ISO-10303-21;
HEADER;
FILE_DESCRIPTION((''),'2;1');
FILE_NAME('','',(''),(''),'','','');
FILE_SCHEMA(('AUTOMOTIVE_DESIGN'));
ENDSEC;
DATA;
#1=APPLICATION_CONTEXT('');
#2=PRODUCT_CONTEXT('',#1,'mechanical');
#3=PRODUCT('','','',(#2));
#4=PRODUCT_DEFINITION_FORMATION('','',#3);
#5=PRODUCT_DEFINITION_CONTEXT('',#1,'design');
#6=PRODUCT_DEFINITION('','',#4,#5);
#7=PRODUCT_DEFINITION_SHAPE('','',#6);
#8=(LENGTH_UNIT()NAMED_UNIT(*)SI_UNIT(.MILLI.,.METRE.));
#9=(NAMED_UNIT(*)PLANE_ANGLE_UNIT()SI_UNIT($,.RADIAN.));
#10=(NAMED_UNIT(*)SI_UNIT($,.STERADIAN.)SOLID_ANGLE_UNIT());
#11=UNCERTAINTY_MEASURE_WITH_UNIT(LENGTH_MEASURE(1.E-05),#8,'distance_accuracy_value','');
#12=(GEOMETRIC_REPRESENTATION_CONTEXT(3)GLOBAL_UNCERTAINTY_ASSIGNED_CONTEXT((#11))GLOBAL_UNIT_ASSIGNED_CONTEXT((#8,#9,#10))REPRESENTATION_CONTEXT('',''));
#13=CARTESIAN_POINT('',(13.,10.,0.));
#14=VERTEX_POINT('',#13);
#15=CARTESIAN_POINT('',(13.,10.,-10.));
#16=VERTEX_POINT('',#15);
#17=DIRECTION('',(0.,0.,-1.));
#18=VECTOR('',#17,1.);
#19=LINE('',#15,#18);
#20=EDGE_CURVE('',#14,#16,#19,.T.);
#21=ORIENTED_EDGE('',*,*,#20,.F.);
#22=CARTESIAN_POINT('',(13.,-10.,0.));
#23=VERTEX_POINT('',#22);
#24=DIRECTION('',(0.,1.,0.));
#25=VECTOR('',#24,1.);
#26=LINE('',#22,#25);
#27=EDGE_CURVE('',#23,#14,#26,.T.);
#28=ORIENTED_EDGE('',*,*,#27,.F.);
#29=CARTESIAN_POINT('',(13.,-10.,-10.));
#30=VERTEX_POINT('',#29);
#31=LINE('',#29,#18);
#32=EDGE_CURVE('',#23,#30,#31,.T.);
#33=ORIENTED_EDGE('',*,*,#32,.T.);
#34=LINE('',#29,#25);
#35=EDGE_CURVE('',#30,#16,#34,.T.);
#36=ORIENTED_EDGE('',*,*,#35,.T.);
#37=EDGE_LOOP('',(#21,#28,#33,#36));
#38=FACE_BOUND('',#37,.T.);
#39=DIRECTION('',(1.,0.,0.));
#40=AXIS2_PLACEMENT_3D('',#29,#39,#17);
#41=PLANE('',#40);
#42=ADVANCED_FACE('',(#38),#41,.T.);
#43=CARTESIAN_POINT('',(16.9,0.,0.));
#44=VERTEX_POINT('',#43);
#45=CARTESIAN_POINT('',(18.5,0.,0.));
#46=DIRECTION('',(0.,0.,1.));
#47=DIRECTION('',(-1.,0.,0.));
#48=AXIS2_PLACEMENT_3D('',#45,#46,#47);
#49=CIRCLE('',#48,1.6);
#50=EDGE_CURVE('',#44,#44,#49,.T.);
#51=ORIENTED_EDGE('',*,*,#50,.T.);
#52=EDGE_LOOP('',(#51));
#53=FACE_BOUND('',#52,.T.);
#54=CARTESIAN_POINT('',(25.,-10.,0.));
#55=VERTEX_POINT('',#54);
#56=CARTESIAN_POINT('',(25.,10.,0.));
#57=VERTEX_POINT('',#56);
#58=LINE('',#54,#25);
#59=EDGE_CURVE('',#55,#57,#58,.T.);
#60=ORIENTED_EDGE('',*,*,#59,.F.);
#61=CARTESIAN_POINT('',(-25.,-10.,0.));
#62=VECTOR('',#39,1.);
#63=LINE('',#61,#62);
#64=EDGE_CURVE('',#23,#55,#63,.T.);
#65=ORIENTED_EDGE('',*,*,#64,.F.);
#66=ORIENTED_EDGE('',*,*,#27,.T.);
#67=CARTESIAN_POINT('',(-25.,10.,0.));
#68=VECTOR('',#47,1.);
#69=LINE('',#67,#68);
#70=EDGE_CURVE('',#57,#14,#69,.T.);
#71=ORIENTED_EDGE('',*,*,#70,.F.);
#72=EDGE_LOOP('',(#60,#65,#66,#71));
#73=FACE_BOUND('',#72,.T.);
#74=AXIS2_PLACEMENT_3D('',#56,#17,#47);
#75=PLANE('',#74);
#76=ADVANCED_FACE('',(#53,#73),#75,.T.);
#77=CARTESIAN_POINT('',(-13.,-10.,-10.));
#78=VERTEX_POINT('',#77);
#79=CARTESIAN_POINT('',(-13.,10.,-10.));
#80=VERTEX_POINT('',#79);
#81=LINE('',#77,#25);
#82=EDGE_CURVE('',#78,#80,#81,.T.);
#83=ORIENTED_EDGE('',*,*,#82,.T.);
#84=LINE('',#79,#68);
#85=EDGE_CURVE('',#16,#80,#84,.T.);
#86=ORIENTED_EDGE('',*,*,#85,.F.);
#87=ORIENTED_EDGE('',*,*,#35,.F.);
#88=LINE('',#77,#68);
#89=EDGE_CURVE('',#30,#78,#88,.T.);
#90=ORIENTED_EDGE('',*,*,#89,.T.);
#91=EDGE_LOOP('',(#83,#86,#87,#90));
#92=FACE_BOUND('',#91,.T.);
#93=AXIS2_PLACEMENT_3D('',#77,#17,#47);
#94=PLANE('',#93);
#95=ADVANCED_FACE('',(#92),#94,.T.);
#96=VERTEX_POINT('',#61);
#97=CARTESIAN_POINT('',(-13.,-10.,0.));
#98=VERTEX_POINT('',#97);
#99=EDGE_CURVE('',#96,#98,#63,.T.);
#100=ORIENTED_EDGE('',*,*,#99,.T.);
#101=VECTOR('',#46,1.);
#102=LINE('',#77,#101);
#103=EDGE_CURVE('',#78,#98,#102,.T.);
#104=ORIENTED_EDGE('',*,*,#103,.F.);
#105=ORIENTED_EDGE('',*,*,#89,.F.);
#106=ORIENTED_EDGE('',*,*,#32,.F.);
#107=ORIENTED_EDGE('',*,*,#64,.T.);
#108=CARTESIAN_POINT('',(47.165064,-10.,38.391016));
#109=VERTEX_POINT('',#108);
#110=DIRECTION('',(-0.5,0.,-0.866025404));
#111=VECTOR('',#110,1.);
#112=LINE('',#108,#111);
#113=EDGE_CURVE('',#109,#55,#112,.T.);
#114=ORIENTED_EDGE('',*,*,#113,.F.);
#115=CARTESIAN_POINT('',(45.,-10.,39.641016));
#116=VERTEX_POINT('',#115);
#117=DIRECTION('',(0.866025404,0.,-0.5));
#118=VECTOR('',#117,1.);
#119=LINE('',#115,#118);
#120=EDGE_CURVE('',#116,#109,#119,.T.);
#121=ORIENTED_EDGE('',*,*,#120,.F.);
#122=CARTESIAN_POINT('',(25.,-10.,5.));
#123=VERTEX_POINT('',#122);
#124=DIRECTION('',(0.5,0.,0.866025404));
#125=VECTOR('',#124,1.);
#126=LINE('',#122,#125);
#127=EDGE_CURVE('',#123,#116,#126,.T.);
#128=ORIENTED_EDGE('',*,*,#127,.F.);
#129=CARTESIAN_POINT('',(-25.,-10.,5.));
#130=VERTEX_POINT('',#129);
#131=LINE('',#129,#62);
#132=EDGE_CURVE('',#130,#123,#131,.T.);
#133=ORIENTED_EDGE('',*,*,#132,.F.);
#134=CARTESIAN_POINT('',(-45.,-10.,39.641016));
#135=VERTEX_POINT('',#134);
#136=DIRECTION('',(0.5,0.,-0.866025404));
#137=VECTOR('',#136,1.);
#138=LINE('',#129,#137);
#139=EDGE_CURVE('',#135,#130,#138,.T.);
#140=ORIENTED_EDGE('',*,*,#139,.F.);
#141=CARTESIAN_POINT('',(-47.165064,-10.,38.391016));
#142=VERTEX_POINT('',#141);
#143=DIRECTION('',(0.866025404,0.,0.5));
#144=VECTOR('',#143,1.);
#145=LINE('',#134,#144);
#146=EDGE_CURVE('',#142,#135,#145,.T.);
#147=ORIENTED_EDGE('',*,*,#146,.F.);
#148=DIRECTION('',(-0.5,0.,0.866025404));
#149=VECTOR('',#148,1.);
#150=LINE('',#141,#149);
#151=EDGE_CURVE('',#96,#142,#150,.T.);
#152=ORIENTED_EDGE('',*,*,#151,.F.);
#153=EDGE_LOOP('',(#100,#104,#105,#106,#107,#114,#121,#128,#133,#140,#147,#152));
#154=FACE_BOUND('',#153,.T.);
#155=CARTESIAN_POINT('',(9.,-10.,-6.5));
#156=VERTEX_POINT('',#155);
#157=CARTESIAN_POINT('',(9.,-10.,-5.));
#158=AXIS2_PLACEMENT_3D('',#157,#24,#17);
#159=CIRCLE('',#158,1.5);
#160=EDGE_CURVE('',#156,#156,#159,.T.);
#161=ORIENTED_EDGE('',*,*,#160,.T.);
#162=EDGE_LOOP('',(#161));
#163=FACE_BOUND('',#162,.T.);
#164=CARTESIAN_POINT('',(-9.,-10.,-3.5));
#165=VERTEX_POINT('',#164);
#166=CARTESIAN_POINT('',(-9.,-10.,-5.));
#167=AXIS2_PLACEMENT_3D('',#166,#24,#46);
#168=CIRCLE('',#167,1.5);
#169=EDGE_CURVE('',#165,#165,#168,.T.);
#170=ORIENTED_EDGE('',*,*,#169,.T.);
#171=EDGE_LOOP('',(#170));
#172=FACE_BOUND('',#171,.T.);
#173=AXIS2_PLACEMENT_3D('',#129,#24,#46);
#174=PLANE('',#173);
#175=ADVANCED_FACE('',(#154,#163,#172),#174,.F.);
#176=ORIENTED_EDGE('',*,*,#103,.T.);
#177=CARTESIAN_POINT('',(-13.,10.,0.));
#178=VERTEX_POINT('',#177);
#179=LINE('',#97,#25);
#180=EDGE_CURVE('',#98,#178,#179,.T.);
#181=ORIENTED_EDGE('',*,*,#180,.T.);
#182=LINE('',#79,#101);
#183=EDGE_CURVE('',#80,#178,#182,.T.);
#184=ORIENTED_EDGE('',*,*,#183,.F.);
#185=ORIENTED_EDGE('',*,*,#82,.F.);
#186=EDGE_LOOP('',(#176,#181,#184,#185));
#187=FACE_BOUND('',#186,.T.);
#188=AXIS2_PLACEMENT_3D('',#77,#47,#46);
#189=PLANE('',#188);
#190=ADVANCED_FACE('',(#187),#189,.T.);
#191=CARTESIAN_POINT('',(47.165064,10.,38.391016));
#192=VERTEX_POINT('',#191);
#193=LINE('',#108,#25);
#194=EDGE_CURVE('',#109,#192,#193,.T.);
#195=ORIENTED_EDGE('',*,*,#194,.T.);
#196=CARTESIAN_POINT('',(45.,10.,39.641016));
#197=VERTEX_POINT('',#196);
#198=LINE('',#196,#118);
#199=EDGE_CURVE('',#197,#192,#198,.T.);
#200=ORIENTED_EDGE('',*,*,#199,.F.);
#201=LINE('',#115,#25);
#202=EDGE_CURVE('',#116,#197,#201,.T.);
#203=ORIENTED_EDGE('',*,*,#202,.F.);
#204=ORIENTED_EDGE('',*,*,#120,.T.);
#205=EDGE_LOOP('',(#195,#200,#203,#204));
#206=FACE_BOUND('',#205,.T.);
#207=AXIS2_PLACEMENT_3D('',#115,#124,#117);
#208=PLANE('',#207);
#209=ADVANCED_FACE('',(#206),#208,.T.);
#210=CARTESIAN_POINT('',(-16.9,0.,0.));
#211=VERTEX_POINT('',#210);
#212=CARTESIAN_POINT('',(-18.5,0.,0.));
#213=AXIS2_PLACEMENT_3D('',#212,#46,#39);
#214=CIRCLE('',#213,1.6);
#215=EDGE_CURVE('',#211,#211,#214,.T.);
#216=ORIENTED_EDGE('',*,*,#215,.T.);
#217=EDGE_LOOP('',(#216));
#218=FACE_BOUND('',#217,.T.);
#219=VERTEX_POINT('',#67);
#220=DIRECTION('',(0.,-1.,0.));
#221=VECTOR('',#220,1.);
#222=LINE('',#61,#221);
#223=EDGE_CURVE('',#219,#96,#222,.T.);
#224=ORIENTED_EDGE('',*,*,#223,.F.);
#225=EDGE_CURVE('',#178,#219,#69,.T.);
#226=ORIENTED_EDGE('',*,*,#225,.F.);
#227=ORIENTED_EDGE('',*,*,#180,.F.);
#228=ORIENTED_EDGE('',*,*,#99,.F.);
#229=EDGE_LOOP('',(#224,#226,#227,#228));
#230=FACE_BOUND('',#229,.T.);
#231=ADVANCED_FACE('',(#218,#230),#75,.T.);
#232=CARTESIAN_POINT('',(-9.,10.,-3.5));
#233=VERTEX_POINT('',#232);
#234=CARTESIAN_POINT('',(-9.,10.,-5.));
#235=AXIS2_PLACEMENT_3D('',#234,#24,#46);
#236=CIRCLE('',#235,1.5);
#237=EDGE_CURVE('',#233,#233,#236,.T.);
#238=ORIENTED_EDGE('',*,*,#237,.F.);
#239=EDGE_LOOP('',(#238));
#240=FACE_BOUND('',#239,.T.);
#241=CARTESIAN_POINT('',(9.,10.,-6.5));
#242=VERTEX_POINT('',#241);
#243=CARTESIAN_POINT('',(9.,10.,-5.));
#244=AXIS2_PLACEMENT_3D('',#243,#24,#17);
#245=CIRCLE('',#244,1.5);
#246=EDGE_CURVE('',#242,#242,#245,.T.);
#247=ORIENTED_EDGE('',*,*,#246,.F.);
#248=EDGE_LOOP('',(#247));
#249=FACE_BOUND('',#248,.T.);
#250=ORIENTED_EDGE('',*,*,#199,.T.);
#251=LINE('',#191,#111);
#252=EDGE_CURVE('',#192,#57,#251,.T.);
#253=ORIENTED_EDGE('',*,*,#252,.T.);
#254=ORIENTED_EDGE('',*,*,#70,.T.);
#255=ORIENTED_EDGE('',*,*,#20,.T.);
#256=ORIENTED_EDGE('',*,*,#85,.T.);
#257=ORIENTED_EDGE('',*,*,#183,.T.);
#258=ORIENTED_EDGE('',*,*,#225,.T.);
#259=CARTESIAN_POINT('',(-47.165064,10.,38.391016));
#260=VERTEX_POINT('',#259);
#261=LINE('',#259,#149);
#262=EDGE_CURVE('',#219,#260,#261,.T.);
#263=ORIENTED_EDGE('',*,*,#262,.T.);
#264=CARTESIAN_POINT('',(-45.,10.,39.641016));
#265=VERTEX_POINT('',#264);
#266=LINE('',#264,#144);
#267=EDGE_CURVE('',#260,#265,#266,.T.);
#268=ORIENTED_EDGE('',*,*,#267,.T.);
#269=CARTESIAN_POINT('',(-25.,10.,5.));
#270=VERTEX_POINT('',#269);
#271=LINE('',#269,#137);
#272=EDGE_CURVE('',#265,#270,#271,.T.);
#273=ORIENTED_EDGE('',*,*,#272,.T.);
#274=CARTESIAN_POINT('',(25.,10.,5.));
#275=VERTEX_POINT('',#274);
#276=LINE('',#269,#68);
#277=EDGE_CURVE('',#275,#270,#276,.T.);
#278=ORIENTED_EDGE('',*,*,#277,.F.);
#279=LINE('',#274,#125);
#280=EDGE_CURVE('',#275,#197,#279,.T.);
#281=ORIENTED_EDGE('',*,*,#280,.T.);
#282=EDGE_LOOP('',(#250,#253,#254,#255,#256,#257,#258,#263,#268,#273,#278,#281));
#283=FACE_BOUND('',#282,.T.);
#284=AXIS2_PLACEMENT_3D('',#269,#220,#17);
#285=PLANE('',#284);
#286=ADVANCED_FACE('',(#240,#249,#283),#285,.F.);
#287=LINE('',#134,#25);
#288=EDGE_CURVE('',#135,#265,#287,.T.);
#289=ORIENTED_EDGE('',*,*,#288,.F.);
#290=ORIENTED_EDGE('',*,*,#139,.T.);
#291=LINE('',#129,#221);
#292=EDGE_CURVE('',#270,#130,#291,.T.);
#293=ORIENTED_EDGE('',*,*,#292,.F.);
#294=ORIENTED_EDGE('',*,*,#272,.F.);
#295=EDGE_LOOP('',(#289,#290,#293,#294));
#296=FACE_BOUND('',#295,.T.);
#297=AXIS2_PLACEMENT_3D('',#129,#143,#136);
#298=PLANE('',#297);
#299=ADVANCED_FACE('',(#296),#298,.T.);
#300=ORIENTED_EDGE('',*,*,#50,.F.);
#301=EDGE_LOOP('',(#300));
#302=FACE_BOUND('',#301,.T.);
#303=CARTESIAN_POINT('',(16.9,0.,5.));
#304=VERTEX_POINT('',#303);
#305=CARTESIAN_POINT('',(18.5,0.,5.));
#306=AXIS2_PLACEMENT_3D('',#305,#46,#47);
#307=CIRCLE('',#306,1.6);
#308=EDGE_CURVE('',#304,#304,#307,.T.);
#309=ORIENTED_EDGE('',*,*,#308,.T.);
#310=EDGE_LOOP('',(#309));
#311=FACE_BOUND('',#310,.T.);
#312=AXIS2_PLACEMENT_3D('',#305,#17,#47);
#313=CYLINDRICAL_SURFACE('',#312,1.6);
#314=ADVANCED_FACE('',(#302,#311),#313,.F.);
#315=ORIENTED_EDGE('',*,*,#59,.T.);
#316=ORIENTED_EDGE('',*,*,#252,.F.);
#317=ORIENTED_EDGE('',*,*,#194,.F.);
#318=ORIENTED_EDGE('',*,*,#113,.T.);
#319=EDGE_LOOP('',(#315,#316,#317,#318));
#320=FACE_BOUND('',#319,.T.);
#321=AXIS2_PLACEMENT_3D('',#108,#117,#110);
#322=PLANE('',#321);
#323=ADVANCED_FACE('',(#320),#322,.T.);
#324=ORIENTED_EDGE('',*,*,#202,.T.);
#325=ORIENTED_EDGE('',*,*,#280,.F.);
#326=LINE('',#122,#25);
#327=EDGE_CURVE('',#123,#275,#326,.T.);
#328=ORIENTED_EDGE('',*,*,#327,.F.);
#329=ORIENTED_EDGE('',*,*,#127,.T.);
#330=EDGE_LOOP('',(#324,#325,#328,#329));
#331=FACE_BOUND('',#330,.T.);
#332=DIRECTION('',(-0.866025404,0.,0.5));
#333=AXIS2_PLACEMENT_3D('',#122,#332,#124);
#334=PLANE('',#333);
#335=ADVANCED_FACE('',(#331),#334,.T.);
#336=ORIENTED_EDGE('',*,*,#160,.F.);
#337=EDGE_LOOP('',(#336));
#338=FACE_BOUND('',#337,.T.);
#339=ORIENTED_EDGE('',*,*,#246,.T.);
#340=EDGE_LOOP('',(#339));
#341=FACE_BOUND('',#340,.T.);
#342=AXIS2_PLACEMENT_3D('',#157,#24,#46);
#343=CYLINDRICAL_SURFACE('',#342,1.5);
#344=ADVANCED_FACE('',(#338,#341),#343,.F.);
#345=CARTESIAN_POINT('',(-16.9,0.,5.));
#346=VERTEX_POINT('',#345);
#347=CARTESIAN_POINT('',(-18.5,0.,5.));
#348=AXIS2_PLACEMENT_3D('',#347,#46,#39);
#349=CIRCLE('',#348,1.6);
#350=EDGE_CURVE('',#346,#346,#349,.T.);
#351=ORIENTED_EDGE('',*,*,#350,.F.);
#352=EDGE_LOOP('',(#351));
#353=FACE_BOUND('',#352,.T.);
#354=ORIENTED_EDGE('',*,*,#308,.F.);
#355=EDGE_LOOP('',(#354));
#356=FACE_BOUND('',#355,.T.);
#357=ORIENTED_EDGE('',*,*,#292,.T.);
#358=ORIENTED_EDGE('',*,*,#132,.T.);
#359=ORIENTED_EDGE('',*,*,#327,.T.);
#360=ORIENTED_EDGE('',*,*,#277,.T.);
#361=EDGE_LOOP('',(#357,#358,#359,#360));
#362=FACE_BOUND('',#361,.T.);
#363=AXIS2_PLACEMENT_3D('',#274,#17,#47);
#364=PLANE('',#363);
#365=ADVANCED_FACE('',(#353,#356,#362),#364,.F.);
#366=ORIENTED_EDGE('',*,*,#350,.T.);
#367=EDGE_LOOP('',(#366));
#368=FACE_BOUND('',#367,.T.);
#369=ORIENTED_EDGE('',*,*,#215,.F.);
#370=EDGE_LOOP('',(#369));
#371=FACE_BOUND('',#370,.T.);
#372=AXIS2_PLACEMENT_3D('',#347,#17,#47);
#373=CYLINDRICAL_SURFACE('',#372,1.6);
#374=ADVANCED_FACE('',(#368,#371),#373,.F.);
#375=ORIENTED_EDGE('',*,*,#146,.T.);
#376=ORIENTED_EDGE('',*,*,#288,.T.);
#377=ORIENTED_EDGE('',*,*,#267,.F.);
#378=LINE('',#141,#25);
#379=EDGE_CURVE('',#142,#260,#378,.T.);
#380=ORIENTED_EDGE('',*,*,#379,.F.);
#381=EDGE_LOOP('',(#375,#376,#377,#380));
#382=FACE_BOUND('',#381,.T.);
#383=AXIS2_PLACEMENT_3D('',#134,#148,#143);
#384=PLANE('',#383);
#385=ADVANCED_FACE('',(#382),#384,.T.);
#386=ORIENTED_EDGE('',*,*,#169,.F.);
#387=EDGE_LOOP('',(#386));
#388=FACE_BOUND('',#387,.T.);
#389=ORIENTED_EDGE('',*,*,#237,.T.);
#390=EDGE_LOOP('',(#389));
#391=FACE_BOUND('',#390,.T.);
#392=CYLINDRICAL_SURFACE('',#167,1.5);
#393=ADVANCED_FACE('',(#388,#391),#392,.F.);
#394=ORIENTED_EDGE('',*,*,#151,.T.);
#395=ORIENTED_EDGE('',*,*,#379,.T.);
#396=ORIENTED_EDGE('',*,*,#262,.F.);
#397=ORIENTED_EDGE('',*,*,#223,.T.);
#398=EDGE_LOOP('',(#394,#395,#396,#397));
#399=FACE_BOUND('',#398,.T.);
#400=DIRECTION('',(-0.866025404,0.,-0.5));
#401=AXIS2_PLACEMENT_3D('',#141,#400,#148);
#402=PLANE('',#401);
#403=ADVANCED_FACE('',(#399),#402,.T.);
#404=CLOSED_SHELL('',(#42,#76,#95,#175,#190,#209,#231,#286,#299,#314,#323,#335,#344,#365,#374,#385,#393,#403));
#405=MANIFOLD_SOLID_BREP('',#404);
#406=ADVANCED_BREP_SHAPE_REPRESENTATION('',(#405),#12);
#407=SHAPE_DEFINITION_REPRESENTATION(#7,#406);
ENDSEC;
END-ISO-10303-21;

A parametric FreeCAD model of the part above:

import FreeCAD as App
import Part
import Sketcher
from FreeCAD import Vector
Q = App.Units.Quantity


def add_polygon(sketch, points):
    """Adds a closed chain of lines whose ends are joined by coincident constraints."""
    first, n = sketch.GeometryCount, len(points)
    for a, b in zip(points, points[1:] + points[:1]):
        sketch.addGeometry(Part.LineSegment(App.Vector(*a, 0), App.Vector(*b, 0)), False)
    for i in range(n):
        sketch.addConstraint(Sketcher.Constraint("Coincident", first + i, 2, first + (i + 1) % n, 1))

doc = App.newDocument("Part")
body = doc.addObject("PartDesign::Body", "Body")

sketch1 = body.newObject("Sketcher::SketchObject", "Sketch")
sketch1.AttachmentSupport = (doc.getObject("XY_Plane"), [""])
sketch1.MapMode = "FlatFace"
add_polygon(sketch1, [(-25, 10), (-25, -10), (25, -10), (25, 10)])
sketch1.addGeometry(Part.Circle(Vector(-18.5, 0, 0), Vector(0, 0, 1), 1.6), False)
sketch1.addGeometry(Part.Circle(Vector(18.5, 0, 0), Vector(0, 0, 1), 1.6), False)
sketch1.addConstraint(Sketcher.Constraint("Vertical", 0))
sketch1.addConstraint(Sketcher.Constraint("Horizontal", 1))
sketch1.addConstraint(Sketcher.Constraint("Vertical", 2))
sketch1.addConstraint(Sketcher.Constraint("Horizontal", 3))
sketch1.addConstraint(Sketcher.Constraint("Equal", 4, 5))
sketch1.addConstraint(Sketcher.Constraint("Symmetric", 4, 3, 5, 3, -1, 1))
sketch1.addConstraint(Sketcher.Constraint("Symmetric", 0, 2, 2, 2, -1, 1))
sketch1.addConstraint(Sketcher.Constraint("PointOnObject", 4, 3, -1))
sketch1.addConstraint(Sketcher.Constraint("Diameter", 4, 3.2))
sketch1.addConstraint(Sketcher.Constraint("DistanceX", 1, 1, 1, 2, 50.0))
sketch1.addConstraint(Sketcher.Constraint("DistanceY", 0, 2, 0, 1, 20.0))
sketch1.addConstraint(Sketcher.Constraint("DistanceX", 4, 3, 5, 3, 37.0))
pad1 = body.newObject("PartDesign::Pad", "Pad")
pad1.Profile = sketch1
pad1.Length = 5

sketch2 = body.newObject("Sketcher::SketchObject", "Sketch001")
sketch2.AttachmentSupport = (doc.getObject("XZ_Plane"), [""])
sketch2.MapMode = "FlatFace"
sketch2.AttachmentOffset = App.Placement(Vector(0, 0, -10), App.Rotation())
add_polygon(sketch2, [(25, 0), (25, 5), (45, 39.6), (47.2, 38.4)])
add_polygon(sketch2, [(-47.2, 38.4), (-45, 39.6), (-25, 5), (-25, 0)])
add_polygon(sketch2, [(-13, -10), (-13, 0), (13, 0), (13, -10)])
sketch2.addGeometry(Part.Circle(Vector(-9, -5, 0), Vector(0, 0, 1), 1.5), False)
sketch2.addGeometry(Part.Circle(Vector(9, -5, 0), Vector(0, 0, 1), 1.5), False)
sketch2.addConstraint(Sketcher.Constraint("Vertical", 0))
sketch2.addConstraint(Sketcher.Constraint("Vertical", 6))
sketch2.addConstraint(Sketcher.Constraint("Vertical", 8))
sketch2.addConstraint(Sketcher.Constraint("Horizontal", 9))
sketch2.addConstraint(Sketcher.Constraint("Vertical", 10))
sketch2.addConstraint(Sketcher.Constraint("Horizontal", 11))
sketch2.addConstraint(Sketcher.Constraint("Equal", 12, 13))
sketch2.addConstraint(Sketcher.Constraint("Symmetric", 3, 2, 6, 2, -1, 1))
sketch2.addConstraint(Sketcher.Constraint("Symmetric", 8, 2, 9, 2, -1, 1))
sketch2.addConstraint(Sketcher.Constraint("Symmetric", 12, 3, 13, 3, -2))
sketch2.addConstraint(Sketcher.Constraint("Symmetric", 1, 2, 4, 2, -2))
sketch2.addConstraint(Sketcher.Constraint("Symmetric", 2, 2, 7, 2, -2))
sketch2.addConstraint(Sketcher.Constraint("PointOnObject", 3, 2, -1))
sketch2.addConstraint(Sketcher.Constraint("Perpendicular", 1, 2))
sketch2.addConstraint(Sketcher.Constraint("Perpendicular", 2, 3))
sketch2.addConstraint(Sketcher.Constraint("Perpendicular", 4, 5))
sketch2.addConstraint(Sketcher.Constraint("Diameter", 12, 3.0))
sketch2.addConstraint(Sketcher.Constraint("DistanceX", 9, 1, 9, 2, 26.0))
sketch2.addConstraint(Sketcher.Constraint("DistanceY", 0, 1, 0, 2, 5.0))
sketch2.addConstraint(Sketcher.Constraint("DistanceY", 8, 1, 8, 2, 10.0))
sketch2.addConstraint(Sketcher.Constraint("Angle", 1, Q("60 deg")))
sketch2.addConstraint(Sketcher.Constraint("Distance", 1, 40.0))
sketch2.addConstraint(Sketcher.Constraint("DistanceX", 12, 3, -1, 1, 9.0))
sketch2.addConstraint(Sketcher.Constraint("DistanceY", 12, 3, -1, 1, 5.0))
sketch2.addConstraint(Sketcher.Constraint("DistanceX", -1, 1, 0, 2, 25.0))
pad2 = body.newObject("PartDesign::Pad", "Pad001")
pad2.Profile = sketch2
pad2.Length = 20

doc.recompute()
